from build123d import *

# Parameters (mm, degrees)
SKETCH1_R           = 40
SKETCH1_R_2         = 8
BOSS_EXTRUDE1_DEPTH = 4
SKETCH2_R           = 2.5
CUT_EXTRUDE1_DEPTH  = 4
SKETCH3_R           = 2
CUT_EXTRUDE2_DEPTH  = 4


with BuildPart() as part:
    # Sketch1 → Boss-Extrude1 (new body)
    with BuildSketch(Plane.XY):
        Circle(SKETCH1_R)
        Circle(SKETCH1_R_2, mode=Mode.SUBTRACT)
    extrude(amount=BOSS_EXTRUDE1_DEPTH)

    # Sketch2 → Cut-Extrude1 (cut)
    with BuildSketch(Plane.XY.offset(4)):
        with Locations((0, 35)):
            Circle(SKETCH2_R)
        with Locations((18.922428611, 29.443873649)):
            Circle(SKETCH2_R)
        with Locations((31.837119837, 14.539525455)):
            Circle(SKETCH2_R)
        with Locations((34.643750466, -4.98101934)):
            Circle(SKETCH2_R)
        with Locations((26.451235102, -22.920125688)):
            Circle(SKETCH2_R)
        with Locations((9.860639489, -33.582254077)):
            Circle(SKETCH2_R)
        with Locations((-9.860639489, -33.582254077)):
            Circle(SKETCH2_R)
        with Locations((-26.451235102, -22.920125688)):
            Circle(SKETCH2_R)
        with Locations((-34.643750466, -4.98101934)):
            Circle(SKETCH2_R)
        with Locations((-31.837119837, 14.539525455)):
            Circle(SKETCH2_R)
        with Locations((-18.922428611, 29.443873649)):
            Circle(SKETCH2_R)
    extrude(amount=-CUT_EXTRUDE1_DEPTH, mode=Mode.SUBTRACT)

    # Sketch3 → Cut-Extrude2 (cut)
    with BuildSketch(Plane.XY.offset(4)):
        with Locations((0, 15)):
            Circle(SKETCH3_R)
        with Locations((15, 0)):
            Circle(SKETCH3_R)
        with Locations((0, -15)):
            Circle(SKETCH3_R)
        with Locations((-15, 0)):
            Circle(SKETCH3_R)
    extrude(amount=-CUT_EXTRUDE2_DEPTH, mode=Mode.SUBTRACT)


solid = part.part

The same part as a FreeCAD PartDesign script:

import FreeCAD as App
import Part
import Sketcher

V = App.Vector

doc = App.newDocument("Part")
body = doc.addObject("PartDesign::Body", "Body")

# Sketch on XY plane
sketch1 = body.newObject("Sketcher::SketchObject", "Sketch")
sketch1.AttachmentSupport = (doc.getObject("XY_Plane"), [""])
sketch1.MapMode = "FlatFace"
sketch1.addGeometry(Part.Circle(V(0, 0, 0), V(0, 0, 1), 40), False)
sketch1.addGeometry(Part.Circle(V(0, 0, 0), V(0, 0, 1), 8), False)
sketch1.addConstraint(Sketcher.Constraint("Coincident", 0, 3, -1, 1))
sketch1.addConstraint(Sketcher.Constraint("Coincident", 1, 3, -1, 1))
sketch1.addConstraint(Sketcher.Constraint("Diameter", 0, 80.0))
sketch1.addConstraint(Sketcher.Constraint("Diameter", 1, 16.0))
pad1 = body.newObject("PartDesign::Pad", "Pad")
pad1.Profile = sketch1
pad1.Length = 4

# Sketch on XY plane
sketch2 = body.newObject("Sketcher::SketchObject", "Sketch001")
sketch2.AttachmentSupport = (doc.getObject("XY_Plane"), [""])
sketch2.MapMode = "FlatFace"
sketch2.AttachmentOffset = App.Placement(V(0, 0, 4), App.Rotation())
sketch2.addGeometry(Part.Circle(V(0, 35, 0), V(0, 0, 1), 2.5), False)
sketch2.addGeometry(Part.Circle(V(18.922429, 29.443874, 0), V(0, 0, 1), 2.5), False)
sketch2.addGeometry(Part.Circle(V(31.83712, 14.539525, 0), V(0, 0, 1), 2.5), False)
sketch2.addGeometry(Part.Circle(V(34.64375, -4.981019, 0), V(0, 0, 1), 2.5), False)
sketch2.addGeometry(Part.Circle(V(26.451235, -22.920126, 0), V(0, 0, 1), 2.5), False)
sketch2.addGeometry(Part.Circle(V(9.860639, -33.582254, 0), V(0, 0, 1), 2.5), False)
sketch2.addGeometry(Part.Circle(V(-9.860639, -33.582254, 0), V(0, 0, 1), 2.5), False)
sketch2.addGeometry(Part.Circle(V(-26.451235, -22.920126, 0), V(0, 0, 1), 2.5), False)
sketch2.addGeometry(Part.Circle(V(-34.64375, -4.981019, 0), V(0, 0, 1), 2.5), False)
sketch2.addGeometry(Part.Circle(V(-31.83712, 14.539525, 0), V(0, 0, 1), 2.5), False)
sketch2.addGeometry(Part.Circle(V(-18.922429, 29.443874, 0), V(0, 0, 1), 2.5), False)
sketch2.addConstraint(Sketcher.Constraint("Equal", 0, 1))
sketch2.addConstraint(Sketcher.Constraint("Equal", 1, 2))
sketch2.addConstraint(Sketcher.Constraint("Equal", 2, 3))
sketch2.addConstraint(Sketcher.Constraint("Equal", 3, 4))
sketch2.addConstraint(Sketcher.Constraint("Equal", 4, 5))
sketch2.addConstraint(Sketcher.Constraint("Equal", 5, 6))
sketch2.addConstraint(Sketcher.Constraint("Equal", 6, 7))
sketch2.addConstraint(Sketcher.Constraint("Equal", 7, 8))
sketch2.addConstraint(Sketcher.Constraint("Equal", 8, 9))
sketch2.addConstraint(Sketcher.Constraint("Equal", 9, 10))
sketch2.addConstraint(Sketcher.Constraint("Symmetric", 5, 3, 6, 3, -2))
sketch2.addConstraint(Sketcher.Constraint("Symmetric", 4, 3, 7, 3, -2))
sketch2.addConstraint(Sketcher.Constraint("Symmetric", 3, 3, 8, 3, -2))
sketch2.addConstraint(Sketcher.Constraint("Symmetric", 2, 3, 9, 3, -2))
sketch2.addConstraint(Sketcher.Constraint("Symmetric", 1, 3, 10, 3, -2))
sketch2.addConstraint(Sketcher.Constraint("PointOnObject", 0, 3, -2))
sketch2.addConstraint(Sketcher.Constraint("Diameter", 0, 5.0))
sketch2.addConstraint(Sketcher.Constraint("DistanceY", -1, 1, 0, 3, 35.0))
sketch2.addConstraint(Sketcher.Constraint("DistanceY", 4, 3, 1, 3, 52.363999))
sketch2.addConstraint(Sketcher.Constraint("DistanceX", -1, 1, 1, 3, 18.922429))
sketch2.addConstraint(Sketcher.Constraint("DistanceX", -1, 1, 2, 3, 31.83712))
sketch2.addConstraint(Sketcher.Constraint("DistanceX", -1, 1, 3, 3, 34.64375))
sketch2.addConstraint(Sketcher.Constraint("DistanceY", 3, 3, -1, 1, 4.981019))
sketch2.addConstraint(Sketcher.Constraint("DistanceX", -1, 1, 5, 3, 9.860639))
sketch2.addConstraint(Sketcher.Constraint("DistanceY", 2, 3, 1, 3, 14.904348))
sketch2.addConstraint(Sketcher.Constraint("DistanceY", 5, 3, 4, 3, 10.662128))
sketch2.addConstraint(Sketcher.Constraint("DistanceX", 7, 3, 4, 3, 52.90247))
sketch2.addConstraint(Sketcher.Constraint("DistanceY", -1, 1, 1, 3, 29.443874))
pocket1 = body.newObject("PartDesign::Pocket", "Pocket")
pocket1.Profile = sketch2
pocket1.Length = 4

# Sketch on XY plane
sketch3 = body.newObject("Sketcher::SketchObject", "Sketch002")
sketch3.AttachmentSupport = (doc.getObject("XY_Plane"), [""])
sketch3.MapMode = "FlatFace"
sketch3.AttachmentOffset = App.Placement(V(0, 0, 4), App.Rotation())
sketch3.addGeometry(Part.Circle(V(0, 15, 0), V(0, 0, 1), 2), False)
sketch3.addGeometry(Part.Circle(V(15, 0, 0), V(0, 0, 1), 2), False)
sketch3.addGeometry(Part.Circle(V(0, -15, 0), V(0, 0, 1), 2), False)
sketch3.addGeometry(Part.Circle(V(-15, 0, 0), V(0, 0, 1), 2), False)
sketch3.addConstraint(Sketcher.Constraint("Equal", 0, 1))
sketch3.addConstraint(Sketcher.Constraint("Equal", 1, 2))
sketch3.addConstraint(Sketcher.Constraint("Equal", 2, 3))
sketch3.addConstraint(Sketcher.Constraint("Symmetric", 0, 3, 2, 3, -1, 1))
sketch3.addConstraint(Sketcher.Constraint("Symmetric", 1, 3, 3, 3, -1, 1))
sketch3.addConstraint(Sketcher.Constraint("PointOnObject", 0, 3, -2))
sketch3.addConstraint(Sketcher.Constraint("PointOnObject", 1, 3, -1))
sketch3.addConstraint(Sketcher.Constraint("Diameter", 0, 4.0))
sketch3.addConstraint(Sketcher.Constraint("DistanceY", -1, 1, 0, 3, 15.0))
sketch3.addConstraint(Sketcher.Constraint("DistanceX", -1, 1, 1, 3, 15.0))
pocket2 = body.newObject("PartDesign::Pocket", "Pocket001")
pocket2.Profile = sketch3
pocket2.Length = 4

doc.recompute()
